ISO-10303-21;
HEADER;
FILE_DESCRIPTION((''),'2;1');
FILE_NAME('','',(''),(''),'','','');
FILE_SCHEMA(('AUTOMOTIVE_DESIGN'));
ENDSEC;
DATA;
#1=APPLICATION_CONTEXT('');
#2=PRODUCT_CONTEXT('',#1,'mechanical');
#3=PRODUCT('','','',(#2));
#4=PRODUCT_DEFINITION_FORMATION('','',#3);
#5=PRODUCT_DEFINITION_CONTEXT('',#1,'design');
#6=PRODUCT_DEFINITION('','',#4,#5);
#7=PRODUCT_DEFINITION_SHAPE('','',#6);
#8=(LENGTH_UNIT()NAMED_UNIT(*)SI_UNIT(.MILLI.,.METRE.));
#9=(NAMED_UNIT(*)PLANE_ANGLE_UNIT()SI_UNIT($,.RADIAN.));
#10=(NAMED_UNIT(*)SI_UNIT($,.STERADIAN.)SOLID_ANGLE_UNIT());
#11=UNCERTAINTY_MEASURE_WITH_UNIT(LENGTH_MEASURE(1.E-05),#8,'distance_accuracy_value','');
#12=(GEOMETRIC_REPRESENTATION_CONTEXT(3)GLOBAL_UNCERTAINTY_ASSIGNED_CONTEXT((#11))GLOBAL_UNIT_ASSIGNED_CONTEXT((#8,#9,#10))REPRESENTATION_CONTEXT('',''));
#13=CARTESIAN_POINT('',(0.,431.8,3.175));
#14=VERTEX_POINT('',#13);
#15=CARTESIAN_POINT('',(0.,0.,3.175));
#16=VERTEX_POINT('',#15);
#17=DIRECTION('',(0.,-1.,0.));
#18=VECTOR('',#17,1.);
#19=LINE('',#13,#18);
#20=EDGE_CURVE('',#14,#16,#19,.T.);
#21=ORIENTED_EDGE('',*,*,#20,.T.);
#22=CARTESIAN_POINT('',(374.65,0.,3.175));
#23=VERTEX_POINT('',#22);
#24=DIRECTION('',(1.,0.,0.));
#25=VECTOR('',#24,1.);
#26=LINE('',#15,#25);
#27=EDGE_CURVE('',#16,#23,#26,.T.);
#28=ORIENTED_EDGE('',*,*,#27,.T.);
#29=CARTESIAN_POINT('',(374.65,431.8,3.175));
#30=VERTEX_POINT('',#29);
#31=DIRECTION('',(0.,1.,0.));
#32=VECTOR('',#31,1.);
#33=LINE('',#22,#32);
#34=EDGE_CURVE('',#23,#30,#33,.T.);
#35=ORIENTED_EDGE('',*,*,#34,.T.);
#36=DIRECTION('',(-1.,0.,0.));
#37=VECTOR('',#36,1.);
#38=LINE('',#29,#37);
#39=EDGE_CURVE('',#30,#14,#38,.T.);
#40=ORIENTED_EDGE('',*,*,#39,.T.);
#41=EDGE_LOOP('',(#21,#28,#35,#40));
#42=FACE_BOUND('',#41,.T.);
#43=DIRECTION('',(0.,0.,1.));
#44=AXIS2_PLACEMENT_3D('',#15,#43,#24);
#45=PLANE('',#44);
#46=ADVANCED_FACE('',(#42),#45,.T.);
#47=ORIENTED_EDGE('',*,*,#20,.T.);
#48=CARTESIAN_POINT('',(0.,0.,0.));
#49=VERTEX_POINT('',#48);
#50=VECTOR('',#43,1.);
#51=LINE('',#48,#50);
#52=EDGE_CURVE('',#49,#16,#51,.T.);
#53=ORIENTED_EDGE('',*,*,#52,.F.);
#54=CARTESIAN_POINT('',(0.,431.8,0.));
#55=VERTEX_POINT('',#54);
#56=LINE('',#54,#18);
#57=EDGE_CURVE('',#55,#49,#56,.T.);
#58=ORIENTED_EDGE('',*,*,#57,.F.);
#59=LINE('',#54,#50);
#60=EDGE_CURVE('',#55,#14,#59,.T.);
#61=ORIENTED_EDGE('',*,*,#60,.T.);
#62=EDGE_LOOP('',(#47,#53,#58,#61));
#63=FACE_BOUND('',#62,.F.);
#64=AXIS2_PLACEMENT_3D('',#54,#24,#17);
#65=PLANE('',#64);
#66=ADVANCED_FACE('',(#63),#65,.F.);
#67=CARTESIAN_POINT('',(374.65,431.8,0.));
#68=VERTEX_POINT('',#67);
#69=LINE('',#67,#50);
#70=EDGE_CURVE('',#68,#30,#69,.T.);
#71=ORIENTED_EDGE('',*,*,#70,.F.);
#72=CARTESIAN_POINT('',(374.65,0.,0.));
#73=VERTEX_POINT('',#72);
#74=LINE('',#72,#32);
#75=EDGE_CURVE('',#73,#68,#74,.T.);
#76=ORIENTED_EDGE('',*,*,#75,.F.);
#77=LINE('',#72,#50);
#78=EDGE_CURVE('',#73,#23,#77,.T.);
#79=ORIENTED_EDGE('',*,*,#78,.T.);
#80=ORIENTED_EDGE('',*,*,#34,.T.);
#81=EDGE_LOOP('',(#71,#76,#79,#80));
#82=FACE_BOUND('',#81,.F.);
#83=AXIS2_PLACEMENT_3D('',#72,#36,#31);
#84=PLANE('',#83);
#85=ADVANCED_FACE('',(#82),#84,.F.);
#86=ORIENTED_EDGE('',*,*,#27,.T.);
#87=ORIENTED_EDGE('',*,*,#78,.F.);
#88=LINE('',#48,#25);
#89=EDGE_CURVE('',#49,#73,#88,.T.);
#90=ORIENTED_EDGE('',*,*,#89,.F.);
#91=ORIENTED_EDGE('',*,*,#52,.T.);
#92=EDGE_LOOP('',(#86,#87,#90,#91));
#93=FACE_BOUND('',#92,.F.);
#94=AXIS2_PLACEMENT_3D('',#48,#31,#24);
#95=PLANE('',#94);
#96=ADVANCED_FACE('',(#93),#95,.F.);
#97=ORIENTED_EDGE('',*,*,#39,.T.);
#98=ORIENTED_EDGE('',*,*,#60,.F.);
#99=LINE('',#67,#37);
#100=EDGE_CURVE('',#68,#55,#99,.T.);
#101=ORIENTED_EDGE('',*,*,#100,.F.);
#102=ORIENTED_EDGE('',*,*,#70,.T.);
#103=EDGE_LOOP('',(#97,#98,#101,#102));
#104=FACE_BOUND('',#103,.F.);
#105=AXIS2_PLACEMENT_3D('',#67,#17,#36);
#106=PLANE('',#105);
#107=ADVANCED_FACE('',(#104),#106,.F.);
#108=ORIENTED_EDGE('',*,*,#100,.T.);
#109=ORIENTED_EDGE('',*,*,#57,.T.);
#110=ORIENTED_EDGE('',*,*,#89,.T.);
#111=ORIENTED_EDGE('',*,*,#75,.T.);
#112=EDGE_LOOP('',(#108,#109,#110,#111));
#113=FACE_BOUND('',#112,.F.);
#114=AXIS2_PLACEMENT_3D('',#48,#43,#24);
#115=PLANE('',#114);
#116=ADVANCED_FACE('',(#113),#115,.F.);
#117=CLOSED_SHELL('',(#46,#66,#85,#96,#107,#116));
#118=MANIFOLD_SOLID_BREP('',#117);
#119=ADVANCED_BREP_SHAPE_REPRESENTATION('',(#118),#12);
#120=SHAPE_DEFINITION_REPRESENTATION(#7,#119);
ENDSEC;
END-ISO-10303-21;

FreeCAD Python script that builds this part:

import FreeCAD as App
import Part
import Sketcher
Q = App.Units.Quantity


def add_polygon(sketch, points):
    """Adds a closed chain of lines whose ends are joined by coincident constraints."""
    first, n = sketch.GeometryCount, len(points)
    for a, b in zip(points, points[1:] + points[:1]):
        sketch.addGeometry(Part.LineSegment(App.Vector(*a, 0), App.Vector(*b, 0)), False)
    for i in range(n):
        sketch.addConstraint(Sketcher.Constraint("Coincident", first + i, 2, first + (i + 1) % n, 1))

doc = App.newDocument("Part")
body = doc.addObject("PartDesign::Body", "Body")

# Sketch on XY plane
sketch1 = doc.addObject("Sketcher::SketchObject", "Sketch")
body.addObject(sketch1)
sketch1.AttachmentSupport = (doc.XY_Plane, [""])
sketch1.MapMode = "FlatFace"
add_polygon(sketch1, [(0, 432), (0, 0), (375, 0), (375, 432)])  # lines 0-3
sketch1.addConstraint(Sketcher.Constraint("Vertical", 0))
sketch1.addConstraint(Sketcher.Constraint("Horizontal", 1))
sketch1.addConstraint(Sketcher.Constraint("Vertical", 2))
sketch1.addConstraint(Sketcher.Constraint("Horizontal", 3))
sketch1.addConstraint(Sketcher.Constraint("Coincident", 0, 2, -1, 1))
sketch1.addConstraint(Sketcher.Constraint("DistanceY", 0, 2, 0, 1, Q("17 in")))
sketch1.addConstraint(Sketcher.Constraint("DistanceX", 1, 1, 1, 2, Q("14.75 in")))
pad1 = doc.addObject("PartDesign::Pad", "Pad")
body.addObject(pad1)
pad1.Profile = sketch1
pad1.Length = Q("0.125 in")

doc.recompute()
